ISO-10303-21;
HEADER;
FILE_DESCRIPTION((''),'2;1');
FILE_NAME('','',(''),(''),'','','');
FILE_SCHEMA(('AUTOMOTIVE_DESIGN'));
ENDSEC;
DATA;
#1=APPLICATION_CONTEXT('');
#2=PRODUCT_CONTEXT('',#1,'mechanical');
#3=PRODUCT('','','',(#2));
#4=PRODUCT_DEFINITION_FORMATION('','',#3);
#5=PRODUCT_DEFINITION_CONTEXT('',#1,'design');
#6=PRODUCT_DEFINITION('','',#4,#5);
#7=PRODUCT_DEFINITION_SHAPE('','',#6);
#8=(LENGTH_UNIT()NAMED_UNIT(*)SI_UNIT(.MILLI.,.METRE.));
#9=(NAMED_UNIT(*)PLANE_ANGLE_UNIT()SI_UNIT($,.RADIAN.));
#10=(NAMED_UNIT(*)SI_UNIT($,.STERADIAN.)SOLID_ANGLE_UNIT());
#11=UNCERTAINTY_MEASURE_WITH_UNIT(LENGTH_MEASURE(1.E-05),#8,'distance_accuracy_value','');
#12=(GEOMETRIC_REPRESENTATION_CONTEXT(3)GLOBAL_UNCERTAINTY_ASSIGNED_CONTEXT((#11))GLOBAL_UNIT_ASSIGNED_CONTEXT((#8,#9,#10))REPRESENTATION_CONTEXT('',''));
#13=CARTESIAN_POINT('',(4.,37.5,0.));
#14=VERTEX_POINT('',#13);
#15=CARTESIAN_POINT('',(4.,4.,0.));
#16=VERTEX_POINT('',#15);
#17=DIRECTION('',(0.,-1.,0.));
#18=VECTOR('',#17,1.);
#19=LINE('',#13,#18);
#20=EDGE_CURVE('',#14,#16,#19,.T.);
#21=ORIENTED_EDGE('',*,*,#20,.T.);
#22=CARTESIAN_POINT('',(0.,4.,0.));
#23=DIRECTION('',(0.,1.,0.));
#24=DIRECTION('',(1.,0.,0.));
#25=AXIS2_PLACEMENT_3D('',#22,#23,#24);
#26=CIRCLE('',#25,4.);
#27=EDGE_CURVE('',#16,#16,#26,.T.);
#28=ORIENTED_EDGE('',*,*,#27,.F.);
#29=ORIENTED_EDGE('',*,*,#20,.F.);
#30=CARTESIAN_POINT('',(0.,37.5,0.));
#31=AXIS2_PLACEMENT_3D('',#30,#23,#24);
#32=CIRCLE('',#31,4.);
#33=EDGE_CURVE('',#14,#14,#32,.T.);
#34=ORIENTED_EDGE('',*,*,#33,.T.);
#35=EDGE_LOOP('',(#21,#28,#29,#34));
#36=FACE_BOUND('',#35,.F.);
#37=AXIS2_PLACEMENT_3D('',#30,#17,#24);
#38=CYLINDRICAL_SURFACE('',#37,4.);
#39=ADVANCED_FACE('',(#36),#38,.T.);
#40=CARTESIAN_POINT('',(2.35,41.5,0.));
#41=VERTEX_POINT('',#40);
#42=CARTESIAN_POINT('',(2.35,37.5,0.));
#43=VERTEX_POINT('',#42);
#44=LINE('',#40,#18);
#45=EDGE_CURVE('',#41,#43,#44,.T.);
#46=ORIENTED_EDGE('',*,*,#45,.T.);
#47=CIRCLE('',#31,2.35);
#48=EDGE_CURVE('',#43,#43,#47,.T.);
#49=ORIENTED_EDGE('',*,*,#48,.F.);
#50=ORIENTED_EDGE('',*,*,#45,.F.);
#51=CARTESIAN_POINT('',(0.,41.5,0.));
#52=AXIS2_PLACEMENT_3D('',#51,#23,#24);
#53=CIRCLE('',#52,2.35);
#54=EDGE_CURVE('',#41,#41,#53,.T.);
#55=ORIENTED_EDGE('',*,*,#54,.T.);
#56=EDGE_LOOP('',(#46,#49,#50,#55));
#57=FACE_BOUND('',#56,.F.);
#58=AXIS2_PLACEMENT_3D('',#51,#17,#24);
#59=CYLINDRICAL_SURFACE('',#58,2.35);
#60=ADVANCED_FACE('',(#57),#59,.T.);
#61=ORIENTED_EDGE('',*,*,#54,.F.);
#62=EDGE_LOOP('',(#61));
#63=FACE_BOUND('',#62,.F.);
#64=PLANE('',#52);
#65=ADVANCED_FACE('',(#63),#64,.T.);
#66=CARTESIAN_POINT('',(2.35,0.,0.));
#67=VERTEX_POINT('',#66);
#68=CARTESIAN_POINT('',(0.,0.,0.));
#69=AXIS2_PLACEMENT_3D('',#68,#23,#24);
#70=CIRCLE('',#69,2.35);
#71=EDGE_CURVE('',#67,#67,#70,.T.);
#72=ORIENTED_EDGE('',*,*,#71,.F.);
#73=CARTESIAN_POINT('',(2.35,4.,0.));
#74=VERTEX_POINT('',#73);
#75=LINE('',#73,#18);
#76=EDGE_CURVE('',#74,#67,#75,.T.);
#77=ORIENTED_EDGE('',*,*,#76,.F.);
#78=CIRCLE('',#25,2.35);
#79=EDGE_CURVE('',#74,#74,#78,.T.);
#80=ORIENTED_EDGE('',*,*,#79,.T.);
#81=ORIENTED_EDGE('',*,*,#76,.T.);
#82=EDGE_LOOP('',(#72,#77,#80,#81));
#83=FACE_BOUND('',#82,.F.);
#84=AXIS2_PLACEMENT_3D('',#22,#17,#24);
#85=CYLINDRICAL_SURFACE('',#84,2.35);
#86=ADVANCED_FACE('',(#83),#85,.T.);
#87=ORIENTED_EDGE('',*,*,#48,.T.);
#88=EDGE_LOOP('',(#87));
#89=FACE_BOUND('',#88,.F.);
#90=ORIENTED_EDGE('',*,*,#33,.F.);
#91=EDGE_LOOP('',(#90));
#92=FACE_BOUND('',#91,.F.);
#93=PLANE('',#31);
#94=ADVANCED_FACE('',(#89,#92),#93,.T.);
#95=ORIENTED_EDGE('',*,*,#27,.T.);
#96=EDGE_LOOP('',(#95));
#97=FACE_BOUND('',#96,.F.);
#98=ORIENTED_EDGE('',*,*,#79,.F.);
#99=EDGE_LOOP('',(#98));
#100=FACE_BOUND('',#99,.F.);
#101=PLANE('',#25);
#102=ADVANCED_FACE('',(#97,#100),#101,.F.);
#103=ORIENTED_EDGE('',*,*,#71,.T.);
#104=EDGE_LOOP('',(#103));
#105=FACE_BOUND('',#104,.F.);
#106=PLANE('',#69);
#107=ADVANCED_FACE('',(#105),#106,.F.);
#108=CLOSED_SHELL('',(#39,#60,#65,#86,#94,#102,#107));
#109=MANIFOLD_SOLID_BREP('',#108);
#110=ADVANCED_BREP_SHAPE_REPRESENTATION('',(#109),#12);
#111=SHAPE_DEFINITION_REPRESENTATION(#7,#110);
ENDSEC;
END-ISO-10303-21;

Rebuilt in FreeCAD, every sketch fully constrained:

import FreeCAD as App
import Part
import Sketcher
from FreeCAD import Vector

doc = App.newDocument("Part")
params = doc.addObject("Spreadsheet::Sheet", "Params")
for row, (alias, value) in enumerate([
    ("sketch1_height", "4 mm"),
    ("sketch1_height2", "33.5 mm"),
    ("sketch1_width", "2.35 mm"),
    ("revolution_angle", "360 deg"),
], start=1):
    params.set(f"A{row}", alias)
    params.set(f"B{row}", "=" + value)
    params.setAlias(f"B{row}", alias)

body = doc.addObject("PartDesign::Body", "Body")

# Sketch on XY plane
sketch1 = body.newObject("Sketcher::SketchObject", "Sketch")
sketch1.AttachmentSupport = (doc.getObject("XY_Plane"), [""])
sketch1.MapMode = "FlatFace"
sketch1.addGeometry([
    Part.LineSegment(Vector(0, 41.5, 0), Vector(0, 0, 0)),  # 0
    Part.LineSegment(Vector(0, 0, 0), Vector(2.4, 0, 0)),  # 1
    Part.LineSegment(Vector(2.4, 0, 0), Vector(2.4, 4, 0)),  # 2
    Part.LineSegment(Vector(2.4, 4, 0), Vector(4, 4, 0)),  # 3
    Part.LineSegment(Vector(4, 4, 0), Vector(4, 37.5, 0)),  # 4
    Part.LineSegment(Vector(4, 37.5, 0), Vector(2.4, 37.5, 0)),  # 5
    Part.LineSegment(Vector(2.4, 37.5, 0), Vector(2.4, 41.5, 0)),  # 6
    Part.LineSegment(Vector(2.4, 41.5, 0), Vector(0, 41.5, 0)),  # 7
], False)
sketch1.addConstraint([
    Sketcher.Constraint("Coincident", 0, 2, 1, 1),
    Sketcher.Constraint("Coincident", 1, 2, 2, 1),
    Sketcher.Constraint("Coincident", 2, 2, 3, 1),
    Sketcher.Constraint("Coincident", 3, 2, 4, 1),
    Sketcher.Constraint("Coincident", 4, 2, 5, 1),
    Sketcher.Constraint("Coincident", 5, 2, 6, 1),
    Sketcher.Constraint("Coincident", 6, 2, 7, 1),
    Sketcher.Constraint("Coincident", 7, 2, 0, 1),
    Sketcher.Constraint("Vertical", 0),
    Sketcher.Constraint("Horizontal", 1),
    Sketcher.Constraint("Vertical", 2),
    Sketcher.Constraint("Horizontal", 3),
    Sketcher.Constraint("Vertical", 4),
    Sketcher.Constraint("Horizontal", 5),
    Sketcher.Constraint("Vertical", 6),
    Sketcher.Constraint("Horizontal", 7),
    Sketcher.Constraint("Coincident", 0, 2, -1, 1),
    Sketcher.Constraint("Vertical", 2, 2, 5, 2),
    Sketcher.Constraint("Equal", 2, 6),
    Sketcher.Constraint("DistanceY", 2, 1, 2, 2, 4.0),
    Sketcher.Constraint("DistanceY", 4, 1, 4, 2, 33.5),
    Sketcher.Constraint("DistanceX", -1, 1, 3, 2, 4.0),
    Sketcher.Constraint("DistanceX", 1, 1, 1, 2, 2.35),
])
sketch1.setExpression("Constraints[19]", "Params.sketch1_height")
sketch1.setExpression("Constraints[20]", "Params.sketch1_height2")
sketch1.setExpression("Constraints[22]", "Params.sketch1_width")
revolution = body.newObject("PartDesign::Revolution", "Revolution")
revolution.Profile = sketch1
revolution.ReferenceAxis = (sketch1, ["V_Axis"])
revolution.setExpression("Angle", "Params.revolution_angle")

doc.recompute()
